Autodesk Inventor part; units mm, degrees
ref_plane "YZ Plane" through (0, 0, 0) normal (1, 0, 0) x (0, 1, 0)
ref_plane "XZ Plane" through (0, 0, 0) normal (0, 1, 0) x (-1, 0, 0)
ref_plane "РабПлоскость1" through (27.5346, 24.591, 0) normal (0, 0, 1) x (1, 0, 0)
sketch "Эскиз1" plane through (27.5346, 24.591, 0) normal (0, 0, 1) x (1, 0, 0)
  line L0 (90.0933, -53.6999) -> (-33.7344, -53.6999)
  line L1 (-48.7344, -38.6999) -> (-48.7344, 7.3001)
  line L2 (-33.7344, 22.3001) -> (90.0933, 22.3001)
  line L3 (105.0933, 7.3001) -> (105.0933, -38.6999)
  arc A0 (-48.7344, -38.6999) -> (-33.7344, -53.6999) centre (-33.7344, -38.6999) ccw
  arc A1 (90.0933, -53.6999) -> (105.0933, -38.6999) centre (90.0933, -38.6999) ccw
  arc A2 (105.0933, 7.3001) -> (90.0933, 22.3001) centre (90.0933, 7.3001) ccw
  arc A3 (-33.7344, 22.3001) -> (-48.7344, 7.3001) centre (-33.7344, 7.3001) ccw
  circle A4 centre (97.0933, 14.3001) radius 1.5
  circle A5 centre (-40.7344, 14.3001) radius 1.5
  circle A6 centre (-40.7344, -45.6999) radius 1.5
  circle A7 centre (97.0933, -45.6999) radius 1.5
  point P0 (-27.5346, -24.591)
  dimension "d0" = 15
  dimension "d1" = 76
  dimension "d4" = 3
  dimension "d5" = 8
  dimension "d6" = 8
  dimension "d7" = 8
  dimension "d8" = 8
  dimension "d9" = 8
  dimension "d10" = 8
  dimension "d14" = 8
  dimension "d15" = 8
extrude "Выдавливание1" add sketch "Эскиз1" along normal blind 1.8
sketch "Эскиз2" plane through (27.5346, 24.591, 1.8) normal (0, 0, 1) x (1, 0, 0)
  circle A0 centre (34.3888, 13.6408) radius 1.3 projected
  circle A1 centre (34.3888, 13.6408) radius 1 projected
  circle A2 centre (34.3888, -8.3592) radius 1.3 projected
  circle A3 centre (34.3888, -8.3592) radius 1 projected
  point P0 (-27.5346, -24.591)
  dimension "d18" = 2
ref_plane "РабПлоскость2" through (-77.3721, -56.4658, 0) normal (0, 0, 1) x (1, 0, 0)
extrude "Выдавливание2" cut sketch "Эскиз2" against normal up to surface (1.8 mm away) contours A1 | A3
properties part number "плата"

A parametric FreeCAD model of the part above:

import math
import FreeCAD as App
import Part
import Sketcher
from FreeCAD import Vector

doc = App.newDocument("Part")
body = doc.addObject("PartDesign::Body", "Body")

# Sketch on XY plane
sketch1 = body.newObject("Sketcher::SketchObject", "Sketch")
sketch1.AttachmentSupport = (doc.getObject("XY_Plane"), [""])
sketch1.MapMode = "FlatFace"
sketch1.addGeometry(Part.LineSegment(Vector(-6.2, -29.1, 0), Vector(117.6, -29.1, 0)), False)
sketch1.addGeometry(Part.ArcOfCircle(Part.Circle(Vector(117.6, -14.1, 0), Vector(0, 0, 1), 15), math.radians(-90), math.radians(0)), False)
sketch1.addGeometry(Part.LineSegment(Vector(132.6, -14.1, 0), Vector(132.6, 31.9, 0)), False)
sketch1.addGeometry(Part.ArcOfCircle(Part.Circle(Vector(117.6, 31.9, 0), Vector(0, 0, 1), 15), math.radians(0), math.radians(90)), False)
sketch1.addGeometry(Part.LineSegment(Vector(117.6, 46.9, 0), Vector(-6.2, 46.9, 0)), False)
sketch1.addGeometry(Part.ArcOfCircle(Part.Circle(Vector(-6.2, 31.9, 0), Vector(0, 0, 1), 15), math.radians(90), math.radians(180)), False)
sketch1.addGeometry(Part.LineSegment(Vector(-21.2, 31.9, 0), Vector(-21.2, -14.1, 0)), False)
sketch1.addGeometry(Part.ArcOfCircle(Part.Circle(Vector(-6.2, -14.1, 0), Vector(0, 0, 1), 15), math.radians(180), math.radians(270)), False)
sketch1.addGeometry(Part.Circle(Vector(-13.2, -21.1, 0), Vector(0, 0, 1), 1.5), False)
sketch1.addGeometry(Part.Circle(Vector(124.6, -21.1, 0), Vector(0, 0, 1), 1.5), False)
sketch1.addGeometry(Part.Circle(Vector(-13.2, 38.9, 0), Vector(0, 0, 1), 1.5), False)
sketch1.addGeometry(Part.Circle(Vector(124.6, 38.9, 0), Vector(0, 0, 1), 1.5), False)
sketch1.addConstraint(Sketcher.Constraint("Tangent", 0, 2, 1, 1))
sketch1.addConstraint(Sketcher.Constraint("Tangent", 1, 2, 2, 1))
sketch1.addConstraint(Sketcher.Constraint("Tangent", 2, 2, 3, 1))
sketch1.addConstraint(Sketcher.Constraint("Tangent", 3, 2, 4, 1))
sketch1.addConstraint(Sketcher.Constraint("Tangent", 4, 2, 5, 1))
sketch1.addConstraint(Sketcher.Constraint("Tangent", 5, 2, 6, 1))
sketch1.addConstraint(Sketcher.Constraint("Tangent", 6, 2, 7, 1))
sketch1.addConstraint(Sketcher.Constraint("Tangent", 7, 2, 0, 1))
sketch1.addConstraint(Sketcher.Constraint("Horizontal", 0))
sketch1.addConstraint(Sketcher.Constraint("Vertical", 2))
sketch1.addConstraint(Sketcher.Constraint("Horizontal", 4))
sketch1.addConstraint(Sketcher.Constraint("Vertical", 6))
sketch1.addConstraint(Sketcher.Constraint("Equal", 1, 3))
sketch1.addConstraint(Sketcher.Constraint("Equal", 3, 5))
sketch1.addConstraint(Sketcher.Constraint("Equal", 5, 7))
sketch1.addConstraint(Sketcher.Constraint("Equal", 8, 9))
sketch1.addConstraint(Sketcher.Constraint("Equal", 9, 10))
sketch1.addConstraint(Sketcher.Constraint("Equal", 10, 11))
sketch1.addConstraint(Sketcher.Constraint("Horizontal", 8, 3, 9, 3))
sketch1.addConstraint(Sketcher.Constraint("Horizontal", 10, 3, 11, 3))
sketch1.addConstraint(Sketcher.Constraint("Vertical", 8, 3, 10, 3))
sketch1.addConstraint(Sketcher.Constraint("Vertical", 9, 3, 11, 3))
sketch1.addConstraint(Sketcher.Constraint("Diameter", 8, 3.0))
sketch1.addConstraint(Sketcher.Constraint("Radius", 1, 15.0))
sketch1.addConstraint(Sketcher.Constraint("DistanceY", 0, 2, 9, 3, 8.0))
sketch1.addConstraint(Sketcher.Constraint("DistanceX", 9, 3, 1, 2, 8.0))
sketch1.addConstraint(Sketcher.Constraint("DistanceY", 11, 3, 3, 2, 8.0))
sketch1.addConstraint(Sketcher.Constraint("DistanceX", 5, 2, 10, 3, 8.0))
sketch1.addConstraint(Sketcher.Constraint("DistanceY", 2, 1, 2, 2, 46.0))
sketch1.addConstraint(Sketcher.Constraint("DistanceX", 0, 1, 0, 2, 123.8277))
sketch1.addConstraint(Sketcher.Constraint("DistanceX", -1, 1, 1, 3, 117.628))
sketch1.addConstraint(Sketcher.Constraint("DistanceY", 1, 3, -1, 1, 14.109))
pad1 = body.newObject("PartDesign::Pad", "Pad")
pad1.Profile = sketch1
pad1.Length = 1.8

# Sketch on XY plane
sketch2 = body.newObject("Sketcher::SketchObject", "Sketch001")
sketch2.AttachmentSupport = (doc.getObject("XY_Plane"), [""])
sketch2.MapMode = "FlatFace"
sketch2.AttachmentOffset = App.Placement(Vector(0, 0, 1.8), App.Rotation())
sketch2.addGeometry(Part.Circle(Vector(61.9, 38.2, 0), Vector(0, 0, 1), 1), False)
sketch2.addGeometry(Part.Circle(Vector(61.9, 16.2, 0), Vector(0, 0, 1), 1), False)
sketch2.addConstraint(Sketcher.Constraint("Equal", 0, 1))
sketch2.addConstraint(Sketcher.Constraint("Vertical", 0, 3, 1, 3))
sketch2.addConstraint(Sketcher.Constraint("Diameter", 0, 2.0))
sketch2.addConstraint(Sketcher.Constraint("DistanceY", 1, 3, 0, 3, 22.0))
sketch2.addConstraint(Sketcher.Constraint("DistanceX", -1, 1, 0, 3, 61.9234))
sketch2.addConstraint(Sketcher.Constraint("DistanceY", -1, 1, 0, 3, 38.2318))
pocket1 = body.newObject("PartDesign::Pocket", "Pocket")
pocket1.Profile = sketch2
pocket1.Length = 1.8

doc.recompute()
